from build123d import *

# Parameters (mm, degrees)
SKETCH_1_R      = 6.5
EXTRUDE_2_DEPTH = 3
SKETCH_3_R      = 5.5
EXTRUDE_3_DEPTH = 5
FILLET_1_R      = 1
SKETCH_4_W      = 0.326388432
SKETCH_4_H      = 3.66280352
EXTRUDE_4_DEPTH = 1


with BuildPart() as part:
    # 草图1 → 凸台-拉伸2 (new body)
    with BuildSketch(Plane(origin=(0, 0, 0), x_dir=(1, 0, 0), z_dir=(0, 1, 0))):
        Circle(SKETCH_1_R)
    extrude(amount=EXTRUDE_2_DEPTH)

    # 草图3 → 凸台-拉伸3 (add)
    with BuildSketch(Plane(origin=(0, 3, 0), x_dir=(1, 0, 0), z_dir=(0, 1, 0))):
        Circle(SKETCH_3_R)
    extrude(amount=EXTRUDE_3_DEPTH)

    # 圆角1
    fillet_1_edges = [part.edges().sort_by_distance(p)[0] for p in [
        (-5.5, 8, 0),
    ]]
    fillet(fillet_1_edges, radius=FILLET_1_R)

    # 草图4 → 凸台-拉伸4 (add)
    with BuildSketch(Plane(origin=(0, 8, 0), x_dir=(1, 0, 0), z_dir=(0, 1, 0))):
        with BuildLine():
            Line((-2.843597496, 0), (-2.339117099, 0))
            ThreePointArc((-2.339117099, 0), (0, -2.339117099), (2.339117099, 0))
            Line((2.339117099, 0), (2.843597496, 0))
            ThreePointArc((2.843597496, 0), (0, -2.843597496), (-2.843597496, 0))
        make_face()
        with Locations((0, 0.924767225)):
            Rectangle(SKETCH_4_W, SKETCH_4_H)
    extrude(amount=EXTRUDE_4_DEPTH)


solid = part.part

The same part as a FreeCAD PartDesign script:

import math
import FreeCAD as App
import Part
import Sketcher

V = App.Vector
Q = App.Units.Quantity


def edges_at(feature, points):
    """Names of the edges that pass closest to the given points."""
    edges = feature.Shape.Edges
    near = lambda p: min(range(len(edges)), key=lambda i: edges[i].distToShape(Part.Vertex(*p))[0])
    return sorted({f"Edge{near(p) + 1}" for p in points})

doc = App.newDocument("Part")
body = doc.addObject("PartDesign::Body", "Body")

sketch1 = body.newObject("Sketcher::SketchObject", "Sketch")
sketch1.AttachmentSupport = (doc.getObject("XZ_Plane"), [""])
sketch1.MapMode = "FlatFace"
sketch1.addGeometry(Part.Circle(V(0, 0, 0), V(0, 0, 1), 6), False)
sketch1.addConstraint([
    Sketcher.Constraint("Coincident", 0, 3, -1, 1),
    Sketcher.Constraint("Diameter", 0, Q("13 mm")),
])
pad1 = body.newObject("PartDesign::Pad", "Pad")
pad1.Profile = sketch1
pad1.Length = 3
pad1.Reversed = True

sketch2 = body.newObject("Sketcher::SketchObject", "Sketch001")
sketch2.AttachmentSupport = (doc.getObject("XZ_Plane"), [""])
sketch2.MapMode = "FlatFace"
sketch2.AttachmentOffset = App.Placement(V(0, 0, -3), App.Rotation())
sketch2.addGeometry(Part.Circle(V(0, 0, 0), V(0, 0, 1), 6), False)
sketch2.addConstraint([
    Sketcher.Constraint("Coincident", 0, 3, -1, 1),
    Sketcher.Constraint("Diameter", 0, Q("11 mm")),
])
pad2 = body.newObject("PartDesign::Pad", "Pad001")
pad2.Profile = sketch2
pad2.Length = 5
pad2.Reversed = True
doc.recompute()

fillet = body.newObject("PartDesign::Fillet", "Fillet")
fillet.Base = (pad2, edges_at(pad2, [(-5.5, 8, 0)]))
fillet.Radius = 1

sketch3 = body.newObject("Sketcher::SketchObject", "Sketch002")
sketch3.AttachmentSupport = (doc.getObject("XZ_Plane"), [""])
sketch3.MapMode = "FlatFace"
sketch3.AttachmentOffset = App.Placement(V(0, 0, -8), App.Rotation())
sketch3.addGeometry([
    Part.LineSegment(V(-2.34, 0, 0), V(-2.84, 0, 0)),
    Part.ArcOfCircle(Part.Circle(V(0, 0, 0), V(0, 0, 1), 2.84), math.radians(0), math.radians(180)),
    Part.LineSegment(V(2.84, 0, 0), V(2.34, 0, 0)),
    Part.ArcOfCircle(Part.Circle(V(0, 0, 0), V(0, 0, 1), 2.34), math.radians(0), math.radians(180)),
    Part.LineSegment(V(-0.16, -2.76, 0), V(-0.16, 0.91, 0)),
    Part.LineSegment(V(-0.16, 0.91, 0), V(0.16, 0.91, 0)),
    Part.LineSegment(V(0.16, 0.91, 0), V(0.16, -2.76, 0)),
    Part.LineSegment(V(0.16, -2.76, 0), V(-0.16, -2.76, 0)),
], False)
sketch3.addConstraint([
    Sketcher.Constraint("Coincident", 0, 2, 1, 2),
    Sketcher.Constraint("Coincident", 1, 1, 2, 1),
    Sketcher.Constraint("Coincident", 2, 2, 3, 1),
    Sketcher.Constraint("Coincident", 3, 2, 0, 1),
    Sketcher.Constraint("Coincident", 4, 2, 5, 1),
    Sketcher.Constraint("Coincident", 5, 2, 6, 1),
    Sketcher.Constraint("Coincident", 6, 2, 7, 1),
    Sketcher.Constraint("Coincident", 7, 2, 4, 1),
    Sketcher.Constraint("Horizontal", 0),
    Sketcher.Constraint("Horizontal", 2),
    Sketcher.Constraint("Vertical", 4),
    Sketcher.Constraint("Horizontal", 5),
    Sketcher.Constraint("Vertical", 6),
    Sketcher.Constraint("Horizontal", 7),
    Sketcher.Constraint("Coincident", 1, 3, -1, 1),
    Sketcher.Constraint("Coincident", 3, 3, -1, 1),
    Sketcher.Constraint("PointOnObject", 0, 2, -1),
    Sketcher.Constraint("PointOnObject", 1, 1, -1),
    Sketcher.Constraint("Radius", 1, Q("2.843597 mm")),
    Sketcher.Constraint("Radius", 3, Q("2.339117 mm")),
    Sketcher.Constraint("DistanceX", 5, 1, 5, 2, Q("0.326388 mm")),
    Sketcher.Constraint("DistanceY", 4, 1, 4, 2, Q("3.662804 mm")),
    Sketcher.Constraint("DistanceY", 6, 2, -1, 1, Q("2.756169 mm")),
    Sketcher.Constraint("DistanceX", 4, 2, 2, 2, Q("2.502311 mm")),
])
pad3 = body.newObject("PartDesign::Pad", "Pad002")
pad3.Profile = sketch3
pad3.Length = 1
pad3.Reversed = True

doc.recompute()
